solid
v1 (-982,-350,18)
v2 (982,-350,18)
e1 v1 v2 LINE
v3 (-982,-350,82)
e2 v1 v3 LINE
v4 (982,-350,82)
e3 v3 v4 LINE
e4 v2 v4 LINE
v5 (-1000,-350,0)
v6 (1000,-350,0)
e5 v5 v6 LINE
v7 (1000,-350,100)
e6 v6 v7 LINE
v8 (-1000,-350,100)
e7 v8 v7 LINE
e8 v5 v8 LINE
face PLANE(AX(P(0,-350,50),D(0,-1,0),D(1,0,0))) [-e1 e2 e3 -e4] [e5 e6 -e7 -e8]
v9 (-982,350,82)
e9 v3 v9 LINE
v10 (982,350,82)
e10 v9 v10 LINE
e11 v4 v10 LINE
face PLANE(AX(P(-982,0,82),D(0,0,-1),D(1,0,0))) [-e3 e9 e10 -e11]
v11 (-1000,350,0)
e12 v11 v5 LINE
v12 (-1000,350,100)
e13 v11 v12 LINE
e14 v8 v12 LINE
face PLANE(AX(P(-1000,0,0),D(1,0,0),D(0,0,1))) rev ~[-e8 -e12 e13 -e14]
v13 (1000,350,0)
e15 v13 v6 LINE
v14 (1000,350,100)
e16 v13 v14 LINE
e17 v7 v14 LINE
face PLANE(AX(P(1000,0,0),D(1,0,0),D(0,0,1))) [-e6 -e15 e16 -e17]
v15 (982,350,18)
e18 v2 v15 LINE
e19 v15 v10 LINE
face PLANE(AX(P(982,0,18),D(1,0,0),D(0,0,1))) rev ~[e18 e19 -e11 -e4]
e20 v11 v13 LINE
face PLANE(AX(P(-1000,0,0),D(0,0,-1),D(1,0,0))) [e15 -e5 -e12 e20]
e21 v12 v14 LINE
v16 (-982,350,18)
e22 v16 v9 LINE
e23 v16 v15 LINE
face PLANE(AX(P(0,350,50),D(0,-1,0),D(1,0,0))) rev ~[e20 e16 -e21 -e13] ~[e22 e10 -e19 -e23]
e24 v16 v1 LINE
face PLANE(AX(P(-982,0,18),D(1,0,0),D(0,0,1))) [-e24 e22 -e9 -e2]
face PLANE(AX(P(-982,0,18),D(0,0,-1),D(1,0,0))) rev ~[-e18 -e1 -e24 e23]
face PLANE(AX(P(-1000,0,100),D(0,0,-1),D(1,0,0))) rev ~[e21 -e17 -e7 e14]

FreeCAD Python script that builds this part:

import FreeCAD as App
import Part
import Sketcher
from FreeCAD import Vector
Q = App.Units.Quantity

doc = App.newDocument("Part")
params = doc.addObject("Spreadsheet::Sheet", "Params")
for row, (alias, value) in enumerate([
    ("sketch1_width", "2000 mm"),
    ("sketch1_width2", "1964 mm"),
    ("sketch1_height", "100 mm"),
    ("sketch1_height2", "64 mm"),
    ("pad1_length", "700 mm"),
], start=1):
    params.set(f"A{row}", alias)
    params.set(f"B{row}", "=" + value)
    params.setAlias(f"B{row}", alias)

body = doc.addObject("PartDesign::Body", "Body")

# Sketch on XZ plane
sketch1 = doc.addObject("Sketcher::SketchObject", "Sketch")
body.addObject(sketch1)
sketch1.AttachmentSupport = (doc.XZ_Plane, [""])
sketch1.MapMode = "FlatFace"
sketch1.addGeometry(Part.LineSegment(Vector(-1000, 100, 0), Vector(-1000, 0, 0)), False)
sketch1.addGeometry(Part.LineSegment(Vector(-1000, 0, 0), Vector(1000, 0, 0)), False)
sketch1.addGeometry(Part.LineSegment(Vector(1000, 0, 0), Vector(1000, 100, 0)), False)
sketch1.addGeometry(Part.LineSegment(Vector(1000, 100, 0), Vector(-1000, 100, 0)), False)
sketch1.addGeometry(Part.LineSegment(Vector(982, 18, 0), Vector(-982, 18, 0)), False)
sketch1.addGeometry(Part.LineSegment(Vector(-982, 18, 0), Vector(-982, 82, 0)), False)
sketch1.addGeometry(Part.LineSegment(Vector(-982, 82, 0), Vector(982, 82, 0)), False)
sketch1.addGeometry(Part.LineSegment(Vector(982, 82, 0), Vector(982, 18, 0)), False)
sketch1.addConstraint(Sketcher.Constraint("Coincident", 0, 2, 1, 1))
sketch1.addConstraint(Sketcher.Constraint("Coincident", 1, 2, 2, 1))
sketch1.addConstraint(Sketcher.Constraint("Coincident", 2, 2, 3, 1))
sketch1.addConstraint(Sketcher.Constraint("Coincident", 3, 2, 0, 1))
sketch1.addConstraint(Sketcher.Constraint("Coincident", 4, 2, 5, 1))
sketch1.addConstraint(Sketcher.Constraint("Coincident", 5, 2, 6, 1))
sketch1.addConstraint(Sketcher.Constraint("Coincident", 6, 2, 7, 1))
sketch1.addConstraint(Sketcher.Constraint("Coincident", 7, 2, 4, 1))
sketch1.addConstraint(Sketcher.Constraint("Vertical", 0))
sketch1.addConstraint(Sketcher.Constraint("Horizontal", 1))
sketch1.addConstraint(Sketcher.Constraint("Vertical", 2))
sketch1.addConstraint(Sketcher.Constraint("Horizontal", 3))
sketch1.addConstraint(Sketcher.Constraint("Horizontal", 4))
sketch1.addConstraint(Sketcher.Constraint("Vertical", 5))
sketch1.addConstraint(Sketcher.Constraint("Horizontal", 6))
sketch1.addConstraint(Sketcher.Constraint("Vertical", 7))
sketch1.addConstraint(Sketcher.Constraint("Symmetric", 0, 2, 1, 2, -1, 1))
sketch1.addConstraint(Sketcher.Constraint("DistanceX", 1, 1, 1, 2, Q("2000 mm")))
sketch1.addConstraint(Sketcher.Constraint("DistanceX", 4, 2, 4, 1, Q("1964 mm")))
sketch1.addConstraint(Sketcher.Constraint("DistanceY", 0, 2, 0, 1, Q("100 mm")))
sketch1.addConstraint(Sketcher.Constraint("DistanceY", 5, 1, 5, 2, Q("64 mm")))
sketch1.addConstraint(Sketcher.Constraint("DistanceX", 4, 2, -1, 1, Q("982 mm")))
sketch1.addConstraint(Sketcher.Constraint("DistanceY", -1, 1, 4, 2, Q("18 mm")))
sketch1.setExpression("Constraints[17]", "Params.sketch1_width")
sketch1.setExpression("Constraints[18]", "Params.sketch1_width2")
sketch1.setExpression("Constraints[19]", "Params.sketch1_height")
sketch1.setExpression("Constraints[20]", "Params.sketch1_height2")
pad1 = doc.addObject("PartDesign::Pad", "Pad")
body.addObject(pad1)
pad1.Profile = sketch1
pad1.setExpression("Length", "Params.pad1_length")
pad1.Midplane = True

doc.recompute()
